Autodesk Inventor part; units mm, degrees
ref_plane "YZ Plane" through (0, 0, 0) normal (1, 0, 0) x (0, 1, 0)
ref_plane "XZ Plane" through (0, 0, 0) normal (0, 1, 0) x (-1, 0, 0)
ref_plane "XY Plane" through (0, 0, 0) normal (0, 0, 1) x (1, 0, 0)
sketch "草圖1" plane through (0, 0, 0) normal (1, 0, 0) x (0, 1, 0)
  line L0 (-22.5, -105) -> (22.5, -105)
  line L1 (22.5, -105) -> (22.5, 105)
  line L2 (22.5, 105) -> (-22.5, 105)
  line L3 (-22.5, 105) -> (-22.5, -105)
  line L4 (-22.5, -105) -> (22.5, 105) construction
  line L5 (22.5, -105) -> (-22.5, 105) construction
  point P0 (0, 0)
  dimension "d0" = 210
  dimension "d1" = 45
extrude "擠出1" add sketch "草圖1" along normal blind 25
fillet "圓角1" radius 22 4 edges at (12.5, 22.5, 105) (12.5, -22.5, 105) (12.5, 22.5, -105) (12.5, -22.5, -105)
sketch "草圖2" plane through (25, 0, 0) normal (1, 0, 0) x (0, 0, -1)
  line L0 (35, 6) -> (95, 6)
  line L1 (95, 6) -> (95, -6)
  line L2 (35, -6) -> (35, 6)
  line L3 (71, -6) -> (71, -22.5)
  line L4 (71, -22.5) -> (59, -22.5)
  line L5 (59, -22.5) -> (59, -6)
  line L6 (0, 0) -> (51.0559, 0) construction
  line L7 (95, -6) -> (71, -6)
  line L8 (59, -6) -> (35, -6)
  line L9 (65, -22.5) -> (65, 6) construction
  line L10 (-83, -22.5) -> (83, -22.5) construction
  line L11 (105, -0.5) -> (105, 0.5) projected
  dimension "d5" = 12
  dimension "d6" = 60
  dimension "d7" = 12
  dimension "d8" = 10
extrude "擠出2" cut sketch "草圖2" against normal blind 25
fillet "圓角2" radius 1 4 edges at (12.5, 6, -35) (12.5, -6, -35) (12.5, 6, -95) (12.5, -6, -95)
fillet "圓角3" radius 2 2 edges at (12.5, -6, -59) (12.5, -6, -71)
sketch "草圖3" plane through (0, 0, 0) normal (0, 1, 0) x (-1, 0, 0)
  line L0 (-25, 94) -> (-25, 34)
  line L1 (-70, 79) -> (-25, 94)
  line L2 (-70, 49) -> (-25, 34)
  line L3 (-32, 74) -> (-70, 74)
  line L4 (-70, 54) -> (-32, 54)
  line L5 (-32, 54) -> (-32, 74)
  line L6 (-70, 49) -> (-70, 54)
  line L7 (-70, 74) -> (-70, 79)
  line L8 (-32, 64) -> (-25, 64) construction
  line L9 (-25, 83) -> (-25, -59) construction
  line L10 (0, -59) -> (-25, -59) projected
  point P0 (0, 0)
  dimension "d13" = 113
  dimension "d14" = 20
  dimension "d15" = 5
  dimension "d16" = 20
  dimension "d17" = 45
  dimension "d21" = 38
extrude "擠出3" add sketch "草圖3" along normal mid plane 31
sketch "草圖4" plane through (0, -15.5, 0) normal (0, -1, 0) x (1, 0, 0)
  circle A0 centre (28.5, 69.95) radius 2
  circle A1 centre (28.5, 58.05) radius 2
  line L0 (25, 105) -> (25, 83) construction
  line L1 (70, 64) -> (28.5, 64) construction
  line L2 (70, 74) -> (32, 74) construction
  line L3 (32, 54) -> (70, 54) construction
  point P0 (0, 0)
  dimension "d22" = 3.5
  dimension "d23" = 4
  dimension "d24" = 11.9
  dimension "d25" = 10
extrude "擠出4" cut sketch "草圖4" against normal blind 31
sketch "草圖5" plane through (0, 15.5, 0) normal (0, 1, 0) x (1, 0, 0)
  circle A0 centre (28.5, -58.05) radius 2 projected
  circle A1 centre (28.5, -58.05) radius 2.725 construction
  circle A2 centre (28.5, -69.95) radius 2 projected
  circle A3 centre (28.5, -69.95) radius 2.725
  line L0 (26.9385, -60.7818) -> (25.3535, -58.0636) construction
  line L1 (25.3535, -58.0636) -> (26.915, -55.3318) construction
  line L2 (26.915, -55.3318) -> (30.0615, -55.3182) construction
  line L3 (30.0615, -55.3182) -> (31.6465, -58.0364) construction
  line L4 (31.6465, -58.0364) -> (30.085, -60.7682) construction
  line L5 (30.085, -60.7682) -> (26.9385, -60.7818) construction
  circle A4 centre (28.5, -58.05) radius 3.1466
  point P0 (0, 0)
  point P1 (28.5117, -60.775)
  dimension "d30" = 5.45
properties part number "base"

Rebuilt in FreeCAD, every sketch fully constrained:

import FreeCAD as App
import Part
import Sketcher

V = App.Vector


def edges_at(feature, points):
    """Names of the edges that pass closest to the given points."""
    edges = feature.Shape.Edges
    near = lambda p: min(range(len(edges)), key=lambda i: edges[i].distToShape(Part.Vertex(*p))[0])
    return sorted({f"Edge{near(p) + 1}" for p in points})


def add_polygon(sketch, points):
    """Adds a closed chain of lines whose ends are joined by coincident constraints."""
    first, n = sketch.GeometryCount, len(points)
    for a, b in zip(points, points[1:] + points[:1]):
        sketch.addGeometry(Part.LineSegment(App.Vector(*a, 0), App.Vector(*b, 0)), False)
    for i in range(n):
        sketch.addConstraint(Sketcher.Constraint("Coincident", first + i, 2, first + (i + 1) % n, 1))

doc = App.newDocument("Part")
params = doc.addObject("Spreadsheet::Sheet", "Params")
for row, (alias, value) in enumerate([
    ("sketch1_width", "45 mm"),
    ("sketch1_height", "210 mm"),
    ("pad1_length", "25 mm"),
    ("fillet_radius", "22 mm"),
    ("sketch2_width", "12 mm"),
    ("sketch2_height", "60 mm"),
    ("sketch2_width2", "16.5 mm"),
    ("pocket1_length", "25 mm"),
    ("fillet2_radius", "1 mm"),
    ("fillet3_radius", "2 mm"),
    ("sketch3_width", "38 mm"),
    ("sketch3_height", "5 mm"),
    ("sketch3_height2", "20 mm"),
    ("pad2_length", "31 mm"),
    ("sketch4_diameter", "4 mm"),
    ("pocket2_length", "31 mm"),
], start=1):
    params.set(f"A{row}", alias)
    params.set(f"B{row}", "=" + value)
    params.setAlias(f"B{row}", alias)

body = doc.addObject("PartDesign::Body", "Body")

# Sketch on YZ plane
sketch1 = doc.addObject("Sketcher::SketchObject", "Sketch")
body.addObject(sketch1)
sketch1.AttachmentSupport = (doc.YZ_Plane, [""])
sketch1.MapMode = "FlatFace"
add_polygon(sketch1, [(-22, 105), (-22, -105), (22, -105), (22, 105)])  # lines 0-3
sketch1.addConstraint(Sketcher.Constraint("Vertical", 0))
sketch1.addConstraint(Sketcher.Constraint("Horizontal", 1))
sketch1.addConstraint(Sketcher.Constraint("Vertical", 2))
sketch1.addConstraint(Sketcher.Constraint("Horizontal", 3))
sketch1.addConstraint(Sketcher.Constraint("Symmetric", 0, 2, 2, 2, -1, 1))
sketch1.addConstraint(Sketcher.Constraint("DistanceX", 1, 1, 1, 2, 45.0))
sketch1.addConstraint(Sketcher.Constraint("DistanceY", 0, 2, 0, 1, 210.0))
sketch1.setExpression("Constraints[9]", "Params.sketch1_width")
sketch1.setExpression("Constraints[10]", "Params.sketch1_height")
pad1 = doc.addObject("PartDesign::Pad", "Pad")
body.addObject(pad1)
pad1.Profile = sketch1
pad1.setExpression("Length", "Params.pad1_length")
doc.recompute()

fillet = doc.addObject("PartDesign::Fillet", "Fillet")
body.addObject(fillet)
fillet.Base = (pad1, edges_at(pad1, [
    (12.5, 22.5, 105),
    (12.5, -22.5, 105),
    (12.5, 22.5, -105),
    (12.5, -22.5, -105),
]))
fillet.setExpression("Radius", "Params.fillet_radius")

# Sketch on YZ plane
sketch2 = doc.addObject("Sketcher::SketchObject", "Sketch001")
body.addObject(sketch2)
sketch2.AttachmentSupport = (doc.YZ_Plane, [""])
sketch2.MapMode = "FlatFace"
sketch2.AttachmentOffset = App.Placement(V(0, 0, 25), App.Rotation())
add_polygon(sketch2, [(6, -95), (6, -35), (-6, -35), (-6, -59), (-22, -59), (-22, -71), (-6, -71), (-6, -95)])  # lines 0-7
sketch2.addConstraint(Sketcher.Constraint("Vertical", 0))
sketch2.addConstraint(Sketcher.Constraint("Horizontal", 1))
sketch2.addConstraint(Sketcher.Constraint("Vertical", 2))
sketch2.addConstraint(Sketcher.Constraint("Horizontal", 3))
sketch2.addConstraint(Sketcher.Constraint("Vertical", 4))
sketch2.addConstraint(Sketcher.Constraint("Horizontal", 5))
sketch2.addConstraint(Sketcher.Constraint("Vertical", 6))
sketch2.addConstraint(Sketcher.Constraint("Horizontal", 7))
sketch2.addConstraint(Sketcher.Constraint("Vertical", 2, 2, 5, 2))
sketch2.addConstraint(Sketcher.Constraint("Equal", 7, 4))
sketch2.addConstraint(Sketcher.Constraint("Equal", 2, 6))
sketch2.addConstraint(Sketcher.Constraint("DistanceX", 1, 2, 1, 1, 12.0))
sketch2.addConstraint(Sketcher.Constraint("DistanceY", 0, 1, 0, 2, 60.0))
sketch2.addConstraint(Sketcher.Constraint("DistanceX", 3, 2, 3, 1, 16.5))
sketch2.addConstraint(Sketcher.Constraint("DistanceX", -1, 1, 0, 2, 6.0))
sketch2.addConstraint(Sketcher.Constraint("DistanceY", 0, 2, -1, 1, 35.0))
sketch2.setExpression("Constraints[19]", "Params.sketch2_width")
sketch2.setExpression("Constraints[20]", "Params.sketch2_height")
sketch2.setExpression("Constraints[21]", "Params.sketch2_width2")
pocket1 = doc.addObject("PartDesign::Pocket", "Pocket")
body.addObject(pocket1)
pocket1.Profile = sketch2
pocket1.setExpression("Length", "Params.pocket1_length")
doc.recompute()

fillet2 = doc.addObject("PartDesign::Fillet", "Fillet001")
body.addObject(fillet2)
fillet2.Base = (pocket1, edges_at(pocket1, [
    (12.5, 6, -35),
    (12.5, -6, -35),
    (12.5, 6, -95),
    (12.5, -6, -95),
]))
fillet2.setExpression("Radius", "Params.fillet2_radius")
doc.recompute()

fillet3 = doc.addObject("PartDesign::Fillet", "Fillet002")
body.addObject(fillet3)
fillet3.Base = (fillet2, edges_at(fillet2, [(12.5, -6, -59), (12.5, -6, -71)]))
fillet3.setExpression("Radius", "Params.fillet3_radius")

# Sketch on XZ plane
sketch3 = doc.addObject("Sketcher::SketchObject", "Sketch002")
body.addObject(sketch3)
sketch3.AttachmentSupport = (doc.XZ_Plane, [""])
sketch3.MapMode = "FlatFace"
add_polygon(sketch3, [(25, 34), (25, 94), (70, 79), (70, 74), (32, 74), (32, 54), (70, 54), (70, 49)])  # lines 0-7
sketch3.addConstraint(Sketcher.Constraint("Vertical", 0))
sketch3.addConstraint(Sketcher.Constraint("Vertical", 2))
sketch3.addConstraint(Sketcher.Constraint("Horizontal", 3))
sketch3.addConstraint(Sketcher.Constraint("Vertical", 4))
sketch3.addConstraint(Sketcher.Constraint("Horizontal", 5))
sketch3.addConstraint(Sketcher.Constraint("Vertical", 6))
sketch3.addConstraint(Sketcher.Constraint("Vertical", 2, 2, 5, 2))
sketch3.addConstraint(Sketcher.Constraint("Equal", 2, 6))
sketch3.addConstraint(Sketcher.Constraint("Equal", 1, 7))
sketch3.addConstraint(Sketcher.Constraint("DistanceX", 3, 2, 3, 1, 38.0))
sketch3.addConstraint(Sketcher.Constraint("DistanceY", 2, 2, 2, 1, 5.0))
sketch3.addConstraint(Sketcher.Constraint("DistanceY", 4, 2, 4, 1, 20.0))
sketch3.addConstraint(Sketcher.Constraint("DistanceX", 0, 2, 1, 2, 45.0))
sketch3.addConstraint(Sketcher.Constraint("DistanceY", 2, 2, 0, 2, 20.0))
sketch3.addConstraint(Sketcher.Constraint("DistanceX", -1, 1, 0, 2, 25.0))
sketch3.addConstraint(Sketcher.Constraint("DistanceY", -1, 1, 0, 2, 94.0))
sketch3.setExpression("Constraints[17]", "Params.sketch3_width")
sketch3.setExpression("Constraints[18]", "Params.sketch3_height")
sketch3.setExpression("Constraints[19]", "Params.sketch3_height2")
pad2 = doc.addObject("PartDesign::Pad", "Pad001")
body.addObject(pad2)
pad2.Profile = sketch3
pad2.setExpression("Length", "Params.pad2_length")
pad2.Midplane = True

# Sketch on XZ plane
sketch4 = doc.addObject("Sketcher::SketchObject", "Sketch003")
body.addObject(sketch4)
sketch4.AttachmentSupport = (doc.XZ_Plane, [""])
sketch4.MapMode = "FlatFace"
sketch4.AttachmentOffset = App.Placement(V(0, 0, 15.5), App.Rotation())
sketch4.addGeometry(Part.Circle(V(28.5, 70, 0), V(0, 0, 1), 2), False)
sketch4.addGeometry(Part.Circle(V(28.5, 58, 0), V(0, 0, 1), 2), False)
sketch4.addConstraint(Sketcher.Constraint("Equal", 0, 1))
sketch4.addConstraint(Sketcher.Constraint("Vertical", 0, 3, 1, 3))
sketch4.addConstraint(Sketcher.Constraint("Diameter", 0, 4.0))
sketch4.addConstraint(Sketcher.Constraint("DistanceY", 1, 3, 0, 3, 11.9))
sketch4.addConstraint(Sketcher.Constraint("DistanceX", -1, 1, 0, 3, 28.5))
sketch4.addConstraint(Sketcher.Constraint("DistanceY", -1, 1, 0, 3, 69.95))
sketch4.setExpression("Constraints[2]", "Params.sketch4_diameter")
pocket2 = doc.addObject("PartDesign::Pocket", "Pocket001")
body.addObject(pocket2)
pocket2.Profile = sketch4
pocket2.setExpression("Length", "Params.pocket2_length")

doc.recompute()
